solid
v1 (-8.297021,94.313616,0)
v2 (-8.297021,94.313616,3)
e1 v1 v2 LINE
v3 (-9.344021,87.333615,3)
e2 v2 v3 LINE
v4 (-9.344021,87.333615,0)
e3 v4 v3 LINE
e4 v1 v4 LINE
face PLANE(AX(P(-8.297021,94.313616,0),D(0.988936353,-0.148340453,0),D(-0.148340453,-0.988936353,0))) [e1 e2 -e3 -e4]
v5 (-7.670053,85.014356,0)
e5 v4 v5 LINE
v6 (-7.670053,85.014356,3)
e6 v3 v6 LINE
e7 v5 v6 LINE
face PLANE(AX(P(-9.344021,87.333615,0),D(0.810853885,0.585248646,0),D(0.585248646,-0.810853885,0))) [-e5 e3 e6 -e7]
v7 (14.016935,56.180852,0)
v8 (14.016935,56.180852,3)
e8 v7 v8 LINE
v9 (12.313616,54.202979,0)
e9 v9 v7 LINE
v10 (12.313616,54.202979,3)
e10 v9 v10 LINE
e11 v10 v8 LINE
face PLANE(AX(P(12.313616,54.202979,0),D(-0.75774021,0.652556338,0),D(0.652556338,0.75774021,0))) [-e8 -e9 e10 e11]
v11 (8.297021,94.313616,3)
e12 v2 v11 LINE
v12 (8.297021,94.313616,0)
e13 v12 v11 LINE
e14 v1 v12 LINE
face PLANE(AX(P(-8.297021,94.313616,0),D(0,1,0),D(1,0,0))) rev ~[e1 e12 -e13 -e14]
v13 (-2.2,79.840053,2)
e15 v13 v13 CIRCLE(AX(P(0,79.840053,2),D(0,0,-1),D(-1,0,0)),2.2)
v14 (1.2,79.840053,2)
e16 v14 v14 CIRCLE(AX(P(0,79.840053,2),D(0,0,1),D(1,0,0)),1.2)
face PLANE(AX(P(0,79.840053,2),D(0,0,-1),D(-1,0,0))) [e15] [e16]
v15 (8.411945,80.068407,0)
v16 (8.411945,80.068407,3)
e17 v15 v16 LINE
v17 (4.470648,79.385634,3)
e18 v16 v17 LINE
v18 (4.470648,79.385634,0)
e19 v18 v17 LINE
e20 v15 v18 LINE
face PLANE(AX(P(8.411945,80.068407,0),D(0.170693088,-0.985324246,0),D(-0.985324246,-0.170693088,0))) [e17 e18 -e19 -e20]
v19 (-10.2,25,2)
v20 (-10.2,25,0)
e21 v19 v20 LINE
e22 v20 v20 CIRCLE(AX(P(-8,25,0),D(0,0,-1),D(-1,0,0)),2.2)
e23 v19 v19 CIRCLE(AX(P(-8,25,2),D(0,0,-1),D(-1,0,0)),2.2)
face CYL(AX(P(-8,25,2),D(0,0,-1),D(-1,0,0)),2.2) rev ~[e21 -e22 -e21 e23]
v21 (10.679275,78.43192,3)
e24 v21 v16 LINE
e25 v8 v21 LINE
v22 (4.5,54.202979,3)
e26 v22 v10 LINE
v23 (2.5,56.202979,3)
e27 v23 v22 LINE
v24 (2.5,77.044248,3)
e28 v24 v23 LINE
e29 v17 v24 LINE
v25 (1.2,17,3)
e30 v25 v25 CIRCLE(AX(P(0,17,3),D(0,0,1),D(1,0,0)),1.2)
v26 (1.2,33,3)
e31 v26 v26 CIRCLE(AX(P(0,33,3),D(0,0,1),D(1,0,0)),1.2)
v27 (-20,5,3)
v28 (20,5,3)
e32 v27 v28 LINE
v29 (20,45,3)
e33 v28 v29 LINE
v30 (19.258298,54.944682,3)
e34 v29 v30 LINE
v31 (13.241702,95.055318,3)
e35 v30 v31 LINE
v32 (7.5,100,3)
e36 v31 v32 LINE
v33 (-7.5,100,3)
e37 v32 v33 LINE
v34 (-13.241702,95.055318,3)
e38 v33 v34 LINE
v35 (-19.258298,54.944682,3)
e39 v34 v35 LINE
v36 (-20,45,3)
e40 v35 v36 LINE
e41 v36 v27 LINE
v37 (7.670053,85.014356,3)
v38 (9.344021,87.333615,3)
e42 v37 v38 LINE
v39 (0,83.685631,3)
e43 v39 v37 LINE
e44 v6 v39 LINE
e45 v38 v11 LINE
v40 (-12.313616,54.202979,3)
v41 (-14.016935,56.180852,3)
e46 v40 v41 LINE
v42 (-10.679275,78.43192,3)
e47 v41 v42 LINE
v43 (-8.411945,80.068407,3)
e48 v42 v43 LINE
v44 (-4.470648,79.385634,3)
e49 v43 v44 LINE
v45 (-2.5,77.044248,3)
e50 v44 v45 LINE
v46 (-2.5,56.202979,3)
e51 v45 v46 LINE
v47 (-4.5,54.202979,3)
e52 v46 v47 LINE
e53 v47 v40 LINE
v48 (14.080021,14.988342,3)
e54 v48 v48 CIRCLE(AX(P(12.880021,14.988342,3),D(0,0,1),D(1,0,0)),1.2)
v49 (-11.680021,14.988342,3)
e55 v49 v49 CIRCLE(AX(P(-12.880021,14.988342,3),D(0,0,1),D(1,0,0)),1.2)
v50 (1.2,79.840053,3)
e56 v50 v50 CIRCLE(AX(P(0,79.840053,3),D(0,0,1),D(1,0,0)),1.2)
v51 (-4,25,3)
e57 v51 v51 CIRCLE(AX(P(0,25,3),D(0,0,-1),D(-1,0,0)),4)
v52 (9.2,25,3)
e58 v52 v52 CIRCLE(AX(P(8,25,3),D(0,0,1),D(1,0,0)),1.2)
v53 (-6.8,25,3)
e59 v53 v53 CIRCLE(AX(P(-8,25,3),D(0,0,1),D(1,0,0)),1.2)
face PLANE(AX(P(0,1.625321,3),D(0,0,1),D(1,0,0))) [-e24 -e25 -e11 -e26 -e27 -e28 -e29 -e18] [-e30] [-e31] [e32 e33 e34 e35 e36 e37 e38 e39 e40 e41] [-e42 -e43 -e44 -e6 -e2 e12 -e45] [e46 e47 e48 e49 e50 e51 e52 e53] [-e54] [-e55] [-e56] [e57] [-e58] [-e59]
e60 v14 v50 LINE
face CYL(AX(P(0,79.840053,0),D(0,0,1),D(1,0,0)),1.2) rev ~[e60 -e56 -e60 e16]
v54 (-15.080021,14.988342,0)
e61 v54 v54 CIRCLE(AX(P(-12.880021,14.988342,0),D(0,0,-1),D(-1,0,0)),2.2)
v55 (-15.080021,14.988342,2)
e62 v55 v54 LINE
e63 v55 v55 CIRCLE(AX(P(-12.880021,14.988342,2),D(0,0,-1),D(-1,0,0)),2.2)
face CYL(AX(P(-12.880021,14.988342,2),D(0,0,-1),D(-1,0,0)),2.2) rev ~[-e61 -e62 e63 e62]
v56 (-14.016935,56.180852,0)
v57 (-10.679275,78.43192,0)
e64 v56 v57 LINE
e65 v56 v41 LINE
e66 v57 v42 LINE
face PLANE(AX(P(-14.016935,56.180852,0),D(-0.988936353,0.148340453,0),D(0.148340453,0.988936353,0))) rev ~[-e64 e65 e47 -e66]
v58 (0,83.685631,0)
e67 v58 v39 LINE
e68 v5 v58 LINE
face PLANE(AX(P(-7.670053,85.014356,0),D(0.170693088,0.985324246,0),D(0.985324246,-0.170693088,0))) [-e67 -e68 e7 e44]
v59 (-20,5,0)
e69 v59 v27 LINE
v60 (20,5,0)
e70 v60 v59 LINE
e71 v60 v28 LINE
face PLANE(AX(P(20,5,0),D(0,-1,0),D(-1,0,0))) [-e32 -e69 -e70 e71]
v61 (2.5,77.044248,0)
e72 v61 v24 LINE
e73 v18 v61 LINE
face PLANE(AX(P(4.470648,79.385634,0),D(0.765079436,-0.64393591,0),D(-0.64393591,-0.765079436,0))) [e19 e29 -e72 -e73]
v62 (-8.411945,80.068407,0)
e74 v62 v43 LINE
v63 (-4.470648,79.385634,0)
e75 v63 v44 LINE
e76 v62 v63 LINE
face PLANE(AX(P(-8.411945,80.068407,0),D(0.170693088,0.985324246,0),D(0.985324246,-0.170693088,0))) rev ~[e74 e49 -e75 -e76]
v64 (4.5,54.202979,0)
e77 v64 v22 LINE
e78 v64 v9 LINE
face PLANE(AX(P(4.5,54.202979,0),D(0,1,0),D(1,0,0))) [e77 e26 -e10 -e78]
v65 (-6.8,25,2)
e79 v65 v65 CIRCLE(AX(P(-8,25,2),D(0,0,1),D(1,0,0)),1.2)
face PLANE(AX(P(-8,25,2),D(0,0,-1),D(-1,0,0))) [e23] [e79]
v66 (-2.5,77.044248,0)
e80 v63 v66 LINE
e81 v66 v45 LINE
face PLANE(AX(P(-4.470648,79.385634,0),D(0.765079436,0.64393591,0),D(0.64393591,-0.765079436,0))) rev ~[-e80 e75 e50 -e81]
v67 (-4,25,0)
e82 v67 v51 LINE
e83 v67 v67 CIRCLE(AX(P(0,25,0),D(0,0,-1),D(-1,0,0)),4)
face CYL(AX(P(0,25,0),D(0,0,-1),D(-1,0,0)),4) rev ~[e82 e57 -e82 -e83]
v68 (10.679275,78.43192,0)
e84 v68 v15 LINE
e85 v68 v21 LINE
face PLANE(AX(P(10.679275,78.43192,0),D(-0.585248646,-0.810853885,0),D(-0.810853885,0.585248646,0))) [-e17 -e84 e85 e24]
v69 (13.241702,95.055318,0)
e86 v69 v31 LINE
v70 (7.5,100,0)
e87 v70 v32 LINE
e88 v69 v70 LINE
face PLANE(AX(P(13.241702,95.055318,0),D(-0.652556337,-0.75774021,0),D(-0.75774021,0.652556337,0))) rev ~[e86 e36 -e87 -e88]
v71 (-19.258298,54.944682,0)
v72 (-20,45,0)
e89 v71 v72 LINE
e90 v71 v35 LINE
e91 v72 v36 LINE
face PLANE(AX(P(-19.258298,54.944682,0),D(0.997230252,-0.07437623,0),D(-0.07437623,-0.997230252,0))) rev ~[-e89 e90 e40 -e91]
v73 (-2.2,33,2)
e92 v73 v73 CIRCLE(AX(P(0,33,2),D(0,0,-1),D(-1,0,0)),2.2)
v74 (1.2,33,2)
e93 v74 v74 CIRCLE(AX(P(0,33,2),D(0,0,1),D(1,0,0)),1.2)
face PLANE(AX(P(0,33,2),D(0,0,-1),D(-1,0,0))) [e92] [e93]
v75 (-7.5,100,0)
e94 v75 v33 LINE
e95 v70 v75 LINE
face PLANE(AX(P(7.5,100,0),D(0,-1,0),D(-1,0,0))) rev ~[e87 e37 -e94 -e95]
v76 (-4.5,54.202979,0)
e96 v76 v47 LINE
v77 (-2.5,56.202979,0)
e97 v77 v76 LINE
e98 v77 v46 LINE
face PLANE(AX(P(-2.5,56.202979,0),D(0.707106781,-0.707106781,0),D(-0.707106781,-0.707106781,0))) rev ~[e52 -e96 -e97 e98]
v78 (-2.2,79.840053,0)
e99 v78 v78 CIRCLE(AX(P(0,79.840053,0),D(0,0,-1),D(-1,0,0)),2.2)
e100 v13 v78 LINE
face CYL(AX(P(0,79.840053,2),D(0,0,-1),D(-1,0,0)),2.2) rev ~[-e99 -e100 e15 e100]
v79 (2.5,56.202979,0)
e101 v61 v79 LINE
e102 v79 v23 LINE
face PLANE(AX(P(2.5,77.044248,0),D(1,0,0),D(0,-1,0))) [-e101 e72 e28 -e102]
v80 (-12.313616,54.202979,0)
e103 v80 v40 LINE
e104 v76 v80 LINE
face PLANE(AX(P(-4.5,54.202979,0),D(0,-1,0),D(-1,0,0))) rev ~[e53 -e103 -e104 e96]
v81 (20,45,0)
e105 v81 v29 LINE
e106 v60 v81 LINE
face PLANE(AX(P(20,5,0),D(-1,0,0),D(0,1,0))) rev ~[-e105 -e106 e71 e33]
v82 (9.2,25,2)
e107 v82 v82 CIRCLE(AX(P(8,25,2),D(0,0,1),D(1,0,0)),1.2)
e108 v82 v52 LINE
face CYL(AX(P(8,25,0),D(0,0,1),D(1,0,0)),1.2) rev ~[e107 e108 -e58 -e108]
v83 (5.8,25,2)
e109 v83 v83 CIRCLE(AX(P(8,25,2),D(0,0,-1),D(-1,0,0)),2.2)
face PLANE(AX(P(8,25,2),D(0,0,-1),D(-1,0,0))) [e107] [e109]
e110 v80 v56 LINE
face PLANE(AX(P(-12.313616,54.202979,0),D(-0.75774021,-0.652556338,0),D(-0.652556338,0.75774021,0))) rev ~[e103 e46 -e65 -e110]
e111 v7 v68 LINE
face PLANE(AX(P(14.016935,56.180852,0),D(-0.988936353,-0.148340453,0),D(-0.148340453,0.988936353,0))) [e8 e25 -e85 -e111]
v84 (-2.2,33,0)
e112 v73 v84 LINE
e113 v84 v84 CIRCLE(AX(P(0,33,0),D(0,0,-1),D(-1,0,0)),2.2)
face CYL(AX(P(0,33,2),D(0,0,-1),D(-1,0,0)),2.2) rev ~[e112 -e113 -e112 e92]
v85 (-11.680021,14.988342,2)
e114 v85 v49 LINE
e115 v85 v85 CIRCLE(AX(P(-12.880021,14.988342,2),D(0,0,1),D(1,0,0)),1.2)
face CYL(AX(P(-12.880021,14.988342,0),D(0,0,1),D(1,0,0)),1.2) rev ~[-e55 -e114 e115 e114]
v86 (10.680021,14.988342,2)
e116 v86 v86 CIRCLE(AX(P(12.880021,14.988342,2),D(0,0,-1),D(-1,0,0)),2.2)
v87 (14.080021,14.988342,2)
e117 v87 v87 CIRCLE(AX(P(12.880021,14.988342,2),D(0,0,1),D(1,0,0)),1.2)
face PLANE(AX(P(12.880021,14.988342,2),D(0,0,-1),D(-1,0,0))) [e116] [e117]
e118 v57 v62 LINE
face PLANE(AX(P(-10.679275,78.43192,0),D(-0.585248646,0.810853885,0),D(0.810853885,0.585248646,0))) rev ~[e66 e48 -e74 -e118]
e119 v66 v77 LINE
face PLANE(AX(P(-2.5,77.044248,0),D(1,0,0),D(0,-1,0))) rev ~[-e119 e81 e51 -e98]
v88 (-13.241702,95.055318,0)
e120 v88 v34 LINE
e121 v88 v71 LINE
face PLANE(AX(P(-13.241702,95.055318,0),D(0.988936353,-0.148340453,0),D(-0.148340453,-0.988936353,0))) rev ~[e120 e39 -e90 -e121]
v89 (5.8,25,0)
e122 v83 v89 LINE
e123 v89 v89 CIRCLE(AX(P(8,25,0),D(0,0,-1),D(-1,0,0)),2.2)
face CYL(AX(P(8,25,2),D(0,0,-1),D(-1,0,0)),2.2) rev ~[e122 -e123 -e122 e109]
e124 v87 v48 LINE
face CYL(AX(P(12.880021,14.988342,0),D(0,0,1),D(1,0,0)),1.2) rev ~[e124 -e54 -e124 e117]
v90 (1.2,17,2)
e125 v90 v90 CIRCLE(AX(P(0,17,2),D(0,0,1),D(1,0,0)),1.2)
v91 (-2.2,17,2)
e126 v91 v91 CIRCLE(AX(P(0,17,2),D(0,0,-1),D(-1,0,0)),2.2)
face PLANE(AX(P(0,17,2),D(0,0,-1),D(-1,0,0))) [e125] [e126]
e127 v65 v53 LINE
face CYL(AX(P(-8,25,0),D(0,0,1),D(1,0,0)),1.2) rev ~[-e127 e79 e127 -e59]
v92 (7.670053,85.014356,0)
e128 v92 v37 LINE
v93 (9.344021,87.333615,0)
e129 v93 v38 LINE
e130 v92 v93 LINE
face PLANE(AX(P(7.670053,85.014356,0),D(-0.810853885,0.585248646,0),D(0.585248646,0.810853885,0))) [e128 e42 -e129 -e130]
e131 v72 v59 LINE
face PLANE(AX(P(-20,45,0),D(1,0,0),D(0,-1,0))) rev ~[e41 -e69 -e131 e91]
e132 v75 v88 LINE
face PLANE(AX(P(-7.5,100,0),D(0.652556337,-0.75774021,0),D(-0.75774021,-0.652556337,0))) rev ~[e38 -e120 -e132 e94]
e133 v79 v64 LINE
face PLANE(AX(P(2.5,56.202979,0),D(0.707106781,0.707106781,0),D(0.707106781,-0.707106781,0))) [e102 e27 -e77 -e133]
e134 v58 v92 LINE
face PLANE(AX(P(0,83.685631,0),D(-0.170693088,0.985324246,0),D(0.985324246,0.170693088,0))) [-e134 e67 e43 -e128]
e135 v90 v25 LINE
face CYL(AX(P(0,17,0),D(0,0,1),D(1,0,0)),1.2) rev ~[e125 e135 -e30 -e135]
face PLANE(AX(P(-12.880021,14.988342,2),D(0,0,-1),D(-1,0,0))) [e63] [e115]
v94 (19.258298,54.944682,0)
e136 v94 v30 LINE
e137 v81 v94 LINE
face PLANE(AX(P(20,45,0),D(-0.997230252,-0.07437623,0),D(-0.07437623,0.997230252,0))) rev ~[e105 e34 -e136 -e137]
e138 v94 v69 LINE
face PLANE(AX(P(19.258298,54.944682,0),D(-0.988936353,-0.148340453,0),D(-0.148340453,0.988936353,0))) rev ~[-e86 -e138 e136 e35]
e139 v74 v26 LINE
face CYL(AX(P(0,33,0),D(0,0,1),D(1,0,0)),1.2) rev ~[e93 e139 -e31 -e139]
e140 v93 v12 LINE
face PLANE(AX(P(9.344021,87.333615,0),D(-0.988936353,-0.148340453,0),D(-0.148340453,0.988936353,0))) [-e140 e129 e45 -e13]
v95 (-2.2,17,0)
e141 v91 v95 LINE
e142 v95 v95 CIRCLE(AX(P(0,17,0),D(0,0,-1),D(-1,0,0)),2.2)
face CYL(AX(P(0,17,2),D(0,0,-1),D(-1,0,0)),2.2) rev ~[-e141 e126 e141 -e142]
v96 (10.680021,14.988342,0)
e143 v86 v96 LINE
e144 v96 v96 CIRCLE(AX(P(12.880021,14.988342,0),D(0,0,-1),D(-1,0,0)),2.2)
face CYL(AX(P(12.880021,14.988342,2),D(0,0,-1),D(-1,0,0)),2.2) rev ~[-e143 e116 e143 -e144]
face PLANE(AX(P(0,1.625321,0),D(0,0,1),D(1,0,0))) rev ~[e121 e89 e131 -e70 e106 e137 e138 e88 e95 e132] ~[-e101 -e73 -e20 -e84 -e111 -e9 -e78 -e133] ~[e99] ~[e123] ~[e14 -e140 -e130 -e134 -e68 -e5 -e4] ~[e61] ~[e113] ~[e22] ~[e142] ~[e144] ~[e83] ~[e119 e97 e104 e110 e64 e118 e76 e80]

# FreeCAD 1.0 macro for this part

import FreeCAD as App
import Part
import Sketcher

V = App.Vector
Q = App.Units.Quantity

doc = App.newDocument("Part")
body = doc.addObject("PartDesign::Body", "Body")

# Sketch on XY plane
sketch1 = body.newObject("Sketcher::SketchObject", "Sketch")
sketch1.AttachmentSupport = (doc.getObject("XY_Plane"), [""])
sketch1.MapMode = "FlatFace"
sketch1.addGeometry([
    Part.LineSegment(V(20, 5, 0), V(20, 45, 0)),  # 0
    Part.LineSegment(V(20, 45, 0), V(19.3, 54.9, 0)),  # 1
    Part.LineSegment(V(19.3, 54.9, 0), V(13.2, 95.1, 0)),  # 2
    Part.LineSegment(V(13.2, 95.1, 0), V(7.5, 100, 0)),  # 3
    Part.LineSegment(V(7.5, 100, 0), V(-7.5, 100, 0)),  # 4
    Part.LineSegment(V(-7.5, 100, 0), V(-13.2, 95.1, 0)),  # 5
    Part.LineSegment(V(-13.2, 95.1, 0), V(-19.3, 54.9, 0)),  # 6
    Part.LineSegment(V(-19.3, 54.9, 0), V(-20, 45, 0)),  # 7
    Part.LineSegment(V(-20, 45, 0), V(-20, 5, 0)),  # 8
    Part.LineSegment(V(-20, 5, 0), V(-19.4, -5, 0)),  # 9
    Part.LineSegment(V(-19.4, -5, 0), V(-7.7, -98, 0)),  # 10
    Part.LineSegment(V(-7.7, -98, 0), V(-5.5, -100, 0)),  # 11
    Part.LineSegment(V(-5.5, -100, 0), V(5.5, -100, 0)),  # 12
    Part.LineSegment(V(5.5, -100, 0), V(7.7, -98, 0)),  # 13
    Part.LineSegment(V(7.7, -98, 0), V(19.4, -5, 0)),  # 14
    Part.LineSegment(V(19.4, -5, 0), V(20, 5, 0)),  # 15
], False)
sketch1.addConstraint([
    Sketcher.Constraint("Coincident", 0, 2, 1, 1),
    Sketcher.Constraint("Coincident", 1, 2, 2, 1),
    Sketcher.Constraint("Coincident", 2, 2, 3, 1),
    Sketcher.Constraint("Coincident", 3, 2, 4, 1),
    Sketcher.Constraint("Coincident", 4, 2, 5, 1),
    Sketcher.Constraint("Coincident", 5, 2, 6, 1),
    Sketcher.Constraint("Coincident", 6, 2, 7, 1),
    Sketcher.Constraint("Coincident", 7, 2, 8, 1),
    Sketcher.Constraint("Coincident", 8, 2, 9, 1),
    Sketcher.Constraint("Coincident", 9, 2, 10, 1),
    Sketcher.Constraint("Coincident", 10, 2, 11, 1),
    Sketcher.Constraint("Coincident", 11, 2, 12, 1),
    Sketcher.Constraint("Coincident", 12, 2, 13, 1),
    Sketcher.Constraint("Coincident", 13, 2, 14, 1),
    Sketcher.Constraint("Coincident", 14, 2, 15, 1),
    Sketcher.Constraint("Coincident", 15, 2, 0, 1),
    Sketcher.Constraint("Vertical", 0),
    Sketcher.Constraint("Horizontal", 4),
    Sketcher.Constraint("Vertical", 8),
    Sketcher.Constraint("Horizontal", 12),
    Sketcher.Constraint("Symmetric", 2, 2, 5, 2, -2),
    Sketcher.Constraint("Symmetric", 1, 2, 6, 2, -2),
    Sketcher.Constraint("Symmetric", 0, 2, 7, 2, -2),
    Sketcher.Constraint("Symmetric", 10, 2, 13, 2, -2),
    Sketcher.Constraint("Symmetric", 9, 2, 14, 2, -2),
    Sketcher.Constraint("Horizontal", 8, 2, 15, 2),
    Sketcher.Constraint("Equal", 3, 5),
    Sketcher.Constraint("Equal", 11, 13),
    Sketcher.Constraint("DistanceX", 4, 2, 4, 1, Q("15 mm")),
    Sketcher.Constraint("DistanceX", 12, 1, 12, 2, Q("11 mm")),
    Sketcher.Constraint("DistanceY", 0, 1, 0, 2, Q("40 mm")),
    Sketcher.Constraint("DistanceX", -1, 1, 0, 2, Q("20 mm")),
    Sketcher.Constraint("DistanceY", -1, 1, 0, 2, Q("45 mm")),
    Sketcher.Constraint("DistanceY", -1, 1, 3, 2, Q("100 mm")),
    Sketcher.Constraint("DistanceY", 11, 2, -1, 1, Q("100 mm")),
    Sketcher.Constraint("DistanceX", 5, 2, 1, 2, Q("32.5 mm")),
    Sketcher.Constraint("Distance", 2, Q("40.559371 mm")),
    Sketcher.Constraint("Distance", 10, Q("93.778222 mm")),
    Sketcher.Constraint("DistanceY", -1, 1, 1, 2, Q("54.944682 mm")),
    Sketcher.Constraint("DistanceY", -1, 1, 2, 2, Q("95.055318 mm")),
    Sketcher.Constraint("DistanceY", 9, 2, -1, 1, Q("4.961389 mm")),
    Sketcher.Constraint("DistanceX", 10, 2, -1, 1, Q("7.748069 mm")),
    Sketcher.Constraint("DistanceX", 9, 2, 6, 2, Q("0.121529 mm")),
])
pad1 = body.newObject("PartDesign::Pad", "Pad")
pad1.Profile = sketch1
pad1.Length = 3

# Sketch on XY plane
sketch2 = body.newObject("Sketcher::SketchObject", "Sketch001")
sketch2.AttachmentSupport = (doc.getObject("XY_Plane"), [""])
sketch2.MapMode = "FlatFace"
sketch2.AttachmentOffset = App.Placement(V(0, 0, 3), App.Rotation())
sketch2.addGeometry([
    Part.LineSegment(V(10, -5, 0), V(-10, -5, 0)),
    Part.LineSegment(V(-10, -5, 0), V(0, -22, 0)),
    Part.LineSegment(V(0, -22, 0), V(10, -5, 0)),
], False)
sketch2.addConstraint([
    Sketcher.Constraint("Coincident", 0, 2, 1, 1),
    Sketcher.Constraint("Coincident", 1, 2, 2, 1),
    Sketcher.Constraint("Coincident", 2, 2, 0, 1),
    Sketcher.Constraint("Horizontal", 0),
    Sketcher.Constraint("PointOnObject", 1, 2, -2),
    Sketcher.Constraint("Equal", 1, 2),
    Sketcher.Constraint("DistanceX", 0, 2, 0, 1, Q("20 mm")),
    Sketcher.Constraint("Angle", 1, Q("-60 deg")),
    Sketcher.Constraint("DistanceY", 0, 2, -1, 1, Q("5 mm")),
])
pocket1 = body.newObject("PartDesign::Pocket", "Pocket")
pocket1.Profile = sketch2
pocket1.Type = "UpToFirst"

# Sketch on XY plane
sketch3 = body.newObject("Sketcher::SketchObject", "Sketch002")
sketch3.AttachmentSupport = (doc.getObject("XY_Plane"), [""])
sketch3.MapMode = "FlatFace"
sketch3.AttachmentOffset = App.Placement(V(0, 0, 3), App.Rotation())
sketch3.addGeometry([
    Part.LineSegment(V(6.2, -70, 0), V(13.9, -8.2, 0)),
    Part.LineSegment(V(13.9, -8.2, 0), V(2.5, -28, 0)),
    Part.LineSegment(V(2.5, -28, 0), V(2.5, -70, 0)),
    Part.LineSegment(V(2.5, -70, 0), V(6.2, -70, 0)),
], False)
sketch3.addConstraint([
    Sketcher.Constraint("Coincident", 0, 2, 1, 1),
    Sketcher.Constraint("Coincident", 1, 2, 2, 1),
    Sketcher.Constraint("Coincident", 2, 2, 3, 1),
    Sketcher.Constraint("Coincident", 3, 2, 0, 1),
    Sketcher.Constraint("Vertical", 2),
    Sketcher.Constraint("Horizontal", 3),
    Sketcher.Constraint("Angle", 1, Q("-120 deg")),
    Sketcher.Constraint("DistanceY", 2, 2, -1, 1, Q("70 mm")),
    Sketcher.Constraint("DistanceX", -1, 1, 1, 2, Q("2.5 mm")),
    Sketcher.Constraint("DistanceX", 3, 1, 3, 2, Q("3.711089 mm")),
    Sketcher.Constraint("DistanceY", 2, 2, 2, 1, Q("42.009619 mm")),
    Sketcher.Constraint("Distance", 0, Q("62.303458 mm")),
])
pocket2 = body.newObject("PartDesign::Pocket", "Pocket001")
pocket2.Profile = sketch3
pocket2.Type = "UpToFirst"

# Sketch on XY plane
sketch4 = body.newObject("Sketcher::SketchObject", "Sketch003")
sketch4.AttachmentSupport = (doc.getObject("XY_Plane"), [""])
sketch4.MapMode = "FlatFace"
sketch4.AttachmentOffset = App.Placement(V(0, 0, 3), App.Rotation())
sketch4.addGeometry([
    Part.LineSegment(V(-2.5, -28, 0), V(-13.9, -8.2, 0)),
    Part.LineSegment(V(-13.9, -8.2, 0), V(-6.2, -70, 0)),
    Part.LineSegment(V(-6.2, -70, 0), V(-2.5, -70, 0)),
    Part.LineSegment(V(-2.5, -70, 0), V(-2.5, -28, 0)),
], False)
sketch4.addConstraint([
    Sketcher.Constraint("Coincident", 0, 2, 1, 1),
    Sketcher.Constraint("Coincident", 1, 2, 2, 1),
    Sketcher.Constraint("Coincident", 2, 2, 3, 1),
    Sketcher.Constraint("Coincident", 3, 2, 0, 1),
    Sketcher.Constraint("Horizontal", 2),
    Sketcher.Constraint("Vertical", 3),
    Sketcher.Constraint("Angle", 0, Q("120 deg")),
    Sketcher.Constraint("DistanceY", 1, 2, -1, 1, Q("70 mm")),
    Sketcher.Constraint("DistanceX", 2, 2, -1, 1, Q("2.5 mm")),
    Sketcher.Constraint("DistanceX", 2, 1, 2, 2, Q("3.711089 mm")),
    Sketcher.Constraint("DistanceY", 3, 1, 3, 2, Q("42.009619 mm")),
    Sketcher.Constraint("Distance", 1, Q("62.303458 mm")),
])
pocket3 = body.newObject("PartDesign::Pocket", "Pocket002")
pocket3.Profile = sketch4
pocket3.Type = "UpToFirst"

# Sketch on XY plane
sketch5 = body.newObject("Sketcher::SketchObject", "Sketch004")
sketch5.AttachmentSupport = (doc.getObject("XY_Plane"), [""])
sketch5.MapMode = "FlatFace"
sketch5.AttachmentOffset = App.Placement(V(0, 0, 3), App.Rotation())
sketch5.addGeometry([
    Part.LineSegment(V(-2, -80, 0), V(-2, -90, 0)),
    Part.LineSegment(V(-2, -90, 0), V(2, -90, 0)),
    Part.LineSegment(V(2, -90, 0), V(2, -80, 0)),
    Part.LineSegment(V(2, -80, 0), V(-2, -80, 0)),
], False)
sketch5.addConstraint([
    Sketcher.Constraint("Coincident", 0, 2, 1, 1),
    Sketcher.Constraint("Coincident", 1, 2, 2, 1),
    Sketcher.Constraint("Coincident", 2, 2, 3, 1),
    Sketcher.Constraint("Coincident", 3, 2, 0, 1),
    Sketcher.Constraint("Vertical", 0),
    Sketcher.Constraint("Horizontal", 1),
    Sketcher.Constraint("Vertical", 2),
    Sketcher.Constraint("Horizontal", 3),
    Sketcher.Constraint("DistanceX", 1, 1, 1, 2, Q("5 mm")),
    Sketcher.Constraint("DistanceY", 0, 2, 0, 1, Q("10 mm")),
    Sketcher.Constraint("DistanceY", 0, 2, -1, 1, Q("90 mm")),
    Sketcher.Constraint("DistanceX", 0, 2, -1, 1, Q("2.5 mm")),
])
pocket4 = body.newObject("PartDesign::Pocket", "Pocket003")
pocket4.Profile = sketch5
pocket4.Type = "UpToFirst"

# Sketch on XY plane
sketch6 = body.newObject("Sketcher::SketchObject", "Sketch005")
sketch6.AttachmentSupport = (doc.getObject("XY_Plane"), [""])
sketch6.MapMode = "FlatFace"
sketch6.addGeometry([
    Part.Circle(V(5.6, -75, 0), V(0, 0, 1), 1.2),
    Part.Circle(V(-5.6, -75, 0), V(0, 0, 1), 1.2),
], False)
sketch6.addConstraint([
    Sketcher.Constraint("Equal", 0, 1),
    Sketcher.Constraint("Symmetric", 0, 3, 1, 3, -2),
    Sketcher.Constraint("Diameter", 0, Q("2.4 mm")),
    Sketcher.Constraint("DistanceY", 0, 3, -1, 1, Q("75 mm")),
    Sketcher.Constraint("DistanceX", -1, 1, 0, 3, Q("5.586089 mm")),
])
doc.recompute()
hole = body.newObject("PartDesign::Hole", "Hole")
hole.Profile = sketch6
hole.ThreadType = "None"
hole.Diameter = 2.4
hole.DepthType = "ThroughAll"
hole.HoleCutType = "Counterbore"
hole.HoleCutDiameter = 4.4
hole.HoleCutDepth = 2
hole.Reversed = True

# Sketch on XY plane
sketch7 = body.newObject("Sketcher::SketchObject", "Sketch006")
sketch7.AttachmentSupport = (doc.getObject("XY_Plane"), [""])
sketch7.MapMode = "FlatFace"
sketch7.addGeometry(Part.Circle(V(0, 25, 0), V(0, 0, 1), 4), False)
sketch7.addConstraint([
    Sketcher.Constraint("PointOnObject", 0, 3, -2),
    Sketcher.Constraint("Diameter", 0, Q("8 mm")),
    Sketcher.Constraint("DistanceY", -1, 1, 0, 3, Q("25 mm")),
])
pocket5 = body.newObject("PartDesign::Pocket", "Pocket004")
pocket5.Profile = sketch7
pocket5.Type = "UpToFirst"
pocket5.Reversed = True

# Sketch on XY plane
sketch8 = body.newObject("Sketcher::SketchObject", "Sketch007")
sketch8.AttachmentSupport = (doc.getObject("XY_Plane"), [""])
sketch8.MapMode = "FlatFace"
sketch8.addGeometry([
    Part.Circle(V(8, 25, 0), V(0, 0, 1), 1.2),
    Part.Circle(V(0, 33, 0), V(0, 0, 1), 1.2),
    Part.Circle(V(-8, 25, 0), V(0, 0, 1), 1.2),
    Part.Circle(V(0, 17, 0), V(0, 0, 1), 1.2),
], False)
sketch8.addConstraint([
    Sketcher.Constraint("Equal", 0, 1),
    Sketcher.Constraint("Equal", 1, 2),
    Sketcher.Constraint("Equal", 2, 3),
    Sketcher.Constraint("Symmetric", 0, 3, 2, 3, -2),
    Sketcher.Constraint("PointOnObject", 1, 3, -2),
    Sketcher.Constraint("PointOnObject", 3, 3, -2),
    Sketcher.Constraint("Diameter", 0, Q("2.4 mm")),
    Sketcher.Constraint("DistanceX", -1, 1, 0, 3, Q("8 mm")),
    Sketcher.Constraint("DistanceY", -1, 1, 0, 3, Q("25 mm")),
    Sketcher.Constraint("DistanceY", -1, 1, 1, 3, Q("33 mm")),
    Sketcher.Constraint("DistanceY", -1, 1, 3, 3, Q("17 mm")),
])
doc.recompute()
hole2 = body.newObject("PartDesign::Hole", "Hole001")
hole2.Profile = sketch8
hole2.ThreadType = "None"
hole2.Diameter = 2.4
hole2.DepthType = "ThroughAll"
hole2.HoleCutType = "Counterbore"
hole2.HoleCutDiameter = 4.4
hole2.HoleCutDepth = 2
hole2.Reversed = True

# Sketch on XY plane
sketch9 = body.newObject("Sketcher::SketchObject", "Sketch008")
sketch9.AttachmentSupport = (doc.getObject("XY_Plane"), [""])
sketch9.MapMode = "FlatFace"
sketch9.addGeometry([
    Part.Circle(V(12.9, -5, 0), V(0, 0, 1), 1.2),
    Part.Circle(V(-12.9, -5, 0), V(0, 0, 1), 1.2),
], False)
sketch9.addConstraint([
    Sketcher.Constraint("Equal", 0, 1),
    Sketcher.Constraint("Symmetric", 0, 3, 1, 3, -2),
    Sketcher.Constraint("Diameter", 0, Q("2.4 mm")),
    Sketcher.Constraint("DistanceX", -1, 1, 0, 3, Q("12.880021 mm")),
    Sketcher.Constraint("DistanceY", 0, 3, -1, 1, Q("5.011658 mm")),
])
doc.recompute()
hole3 = body.newObject("PartDesign::Hole", "Hole002")
hole3.Profile = sketch9
hole3.ThreadType = "None"
hole3.Diameter = 2.4
hole3.DepthType = "ThroughAll"
hole3.HoleCutType = "Counterbore"
hole3.HoleCutDiameter = 4.4
hole3.HoleCutDepth = 2
hole3.Reversed = True

# Sketch on XY plane
sketch10 = body.newObject("Sketcher::SketchObject", "Sketch009")
sketch10.AttachmentSupport = (doc.getObject("XY_Plane"), [""])
sketch10.MapMode = "FlatFace"
sketch10.addGeometry([
    Part.LineSegment(V(10.7, 78.4, 0), V(14, 56.2, 0)),  # 0
    Part.LineSegment(V(14, 56.2, 0), V(12.3, 54.2, 0)),  # 1
    Part.LineSegment(V(12.3, 54.2, 0), V(4.5, 54.2, 0)),  # 2
    Part.LineSegment(V(4.5, 54.2, 0), V(2.5, 56.2, 0)),  # 3
    Part.LineSegment(V(2.5, 56.2, 0), V(2.5, 77, 0)),  # 4
    Part.LineSegment(V(2.5, 77, 0), V(4.5, 79.4, 0)),  # 5
    Part.LineSegment(V(4.5, 79.4, 0), V(8.4, 80.1, 0)),  # 6
    Part.LineSegment(V(8.4, 80.1, 0), V(10.7, 78.4, 0)),  # 7
    Part.LineSegment(V(8.3, 94.3, 0), V(9.3, 87.3, 0)),  # 8
    Part.LineSegment(V(9.3, 87.3, 0), V(7.7, 85, 0)),  # 9
    Part.LineSegment(V(7.7, 85, 0), V(0, 83.7, 0)),  # 10
    Part.LineSegment(V(0, 83.7, 0), V(-7.7, 85, 0)),  # 11
    Part.LineSegment(V(-7.7, 85, 0), V(-9.3, 87.3, 0)),  # 12
    Part.LineSegment(V(-9.3, 87.3, 0), V(-8.3, 94.3, 0)),  # 13
    Part.LineSegment(V(-8.3, 94.3, 0), V(8.3, 94.3, 0)),  # 14
    Part.LineSegment(V(-4.5, 54.2, 0), V(-12.3, 54.2, 0)),  # 15
    Part.LineSegment(V(-12.3, 54.2, 0), V(-14, 56.2, 0)),  # 16
    Part.LineSegment(V(-14, 56.2, 0), V(-10.7, 78.4, 0)),  # 17
    Part.LineSegment(V(-10.7, 78.4, 0), V(-8.4, 80.1, 0)),  # 18
    Part.LineSegment(V(-8.4, 80.1, 0), V(-4.5, 79.4, 0)),  # 19
    Part.LineSegment(V(-4.5, 79.4, 0), V(-2.5, 77, 0)),  # 20
    Part.LineSegment(V(-2.5, 77, 0), V(-2.5, 56.2, 0)),  # 21
    Part.LineSegment(V(-2.5, 56.2, 0), V(-4.5, 54.2, 0)),  # 22
], False)
sketch10.addConstraint([
    Sketcher.Constraint("Coincident", 0, 2, 1, 1),
    Sketcher.Constraint("Coincident", 1, 2, 2, 1),
    Sketcher.Constraint("Coincident", 2, 2, 3, 1),
    Sketcher.Constraint("Coincident", 3, 2, 4, 1),
    Sketcher.Constraint("Coincident", 4, 2, 5, 1),
    Sketcher.Constraint("Coincident", 5, 2, 6, 1),
    Sketcher.Constraint("Coincident", 6, 2, 7, 1),
    Sketcher.Constraint("Coincident", 7, 2, 0, 1),
    Sketcher.Constraint("Coincident", 8, 2, 9, 1),
    Sketcher.Constraint("Coincident", 9, 2, 10, 1),
    Sketcher.Constraint("Coincident", 10, 2, 11, 1),
    Sketcher.Constraint("Coincident", 11, 2, 12, 1),
    Sketcher.Constraint("Coincident", 12, 2, 13, 1),
    Sketcher.Constraint("Coincident", 13, 2, 14, 1),
    Sketcher.Constraint("Coincident", 14, 2, 8, 1),
    Sketcher.Constraint("Coincident", 15, 2, 16, 1),
    Sketcher.Constraint("Coincident", 16, 2, 17, 1),
    Sketcher.Constraint("Coincident", 17, 2, 18, 1),
    Sketcher.Constraint("Coincident", 18, 2, 19, 1),
    Sketcher.Constraint("Coincident", 19, 2, 20, 1),
    Sketcher.Constraint("Coincident", 20, 2, 21, 1),
    Sketcher.Constraint("Coincident", 21, 2, 22, 1),
    Sketcher.Constraint("Coincident", 22, 2, 15, 1),
    Sketcher.Constraint("Horizontal", 2),
    Sketcher.Constraint("Vertical", 4),
    Sketcher.Constraint("Horizontal", 14),
    Sketcher.Constraint("Horizontal", 15),
    Sketcher.Constraint("Vertical", 21),
    Sketcher.Constraint("Symmetric", 9, 2, 11, 2, -2),
    Sketcher.Constraint("Symmetric", 8, 2, 12, 2, -2),
    Sketcher.Constraint("Symmetric", 1, 2, 15, 2, -2),
    Sketcher.Constraint("Symmetric", 0, 2, 16, 2, -2),
    Sketcher.Constraint("Symmetric", 7, 2, 17, 2, -2),
    Sketcher.Constraint("Symmetric", 6, 2, 18, 2, -2),
    Sketcher.Constraint("Symmetric", 5, 2, 19, 2, -2),
    Sketcher.Constraint("Symmetric", 4, 2, 20, 2, -2),
    Sketcher.Constraint("PointOnObject", 10, 2, -2),
    Sketcher.Constraint("Parallel", 0, 8),
    Sketcher.Constraint("Perpendicular", 7, 9),
    Sketcher.Constraint("Parallel", 6, 10),
    Sketcher.Constraint("Parallel", 13, 17),
    Sketcher.Constraint("Perpendicular", 3, 22),
    Sketcher.Constraint("Horizontal", 3, 2, 21, 2),
    Sketcher.Constraint("Equal", 2, 15),
    Sketcher.Constraint("Distance", 6, Q("4 mm")),
    Sketcher.Constraint("DistanceX", 3, 2, 2, 2, Q("2 mm")),
    Sketcher.Constraint("DistanceX", 20, 2, 4, 2, Q("5 mm")),
    Sketcher.Constraint("Distance", 0, Q("22.5 mm")),
    Sketcher.Constraint("DistanceY", 12, 2, 13, 2, Q("6.980001 mm")),
    Sketcher.Constraint("DistanceX", 11, 2, 6, 2, Q("16.081999 mm")),
    Sketcher.Constraint("DistanceX", 12, 2, 13, 2, Q("1.047 mm")),
    Sketcher.Constraint("DistanceX", 14, 1, 14, 2, Q("16.594041 mm")),
    Sketcher.Constraint("DistanceY", 4, 1, 4, 2, Q("20.841269 mm")),
    Sketcher.Constraint("DistanceX", 11, 2, 5, 2, Q("12.140702 mm")),
    Sketcher.Constraint("DistanceX", 2, 2, 2, 1, Q("7.813616 mm")),
    Sketcher.Constraint("DistanceY", -1, 1, 1, 2, Q("54.202979 mm")),
    Sketcher.Constraint("DistanceX", -1, 1, 5, 2, Q("4.470648 mm")),
    Sketcher.Constraint("DistanceY", -1, 1, 7, 2, Q("78.43192 mm")),
    Sketcher.Constraint("DistanceY", -1, 1, 10, 2, Q("83.685631 mm")),
    Sketcher.Constraint("DistanceX", 1, 2, 0, 2, Q("1.703319 mm")),
    Sketcher.Constraint("DistanceY", 4, 2, 6, 2, Q("3.024159 mm")),
])
pocket6 = body.newObject("PartDesign::Pocket", "Pocket005")
pocket6.Profile = sketch10
pocket6.Length = 3
pocket6.Reversed = True

# Sketch on XY plane
sketch11 = body.newObject("Sketcher::SketchObject", "Sketch010")
sketch11.AttachmentSupport = (doc.getObject("XY_Plane"), [""])
sketch11.MapMode = "FlatFace"
sketch11.addGeometry(Part.Circle(V(0, 79.8, 0), V(0, 0, 1), 1.2), False)
sketch11.addConstraint([
    Sketcher.Constraint("PointOnObject", 0, 3, -2),
    Sketcher.Constraint("Diameter", 0, Q("2.4 mm")),
    Sketcher.Constraint("DistanceY", -1, 1, 0, 3, Q("79.840053 mm")),
])
doc.recompute()
hole4 = body.newObject("PartDesign::Hole", "Hole003")
hole4.Profile = sketch11
hole4.ThreadType = "None"
hole4.Diameter = 2.4
hole4.DepthType = "ThroughAll"
hole4.HoleCutType = "Counterbore"
hole4.HoleCutDiameter = 4.4
hole4.HoleCutDepth = 2
hole4.Reversed = True

# Sketch on XY plane
sketch12 = body.newObject("Sketcher::SketchObject", "Sketch011")
sketch12.AttachmentSupport = (doc.getObject("XY_Plane"), [""])
sketch12.MapMode = "FlatFace"
sketch12.addGeometry([
    Part.Circle(V(12.9, 15, 0), V(0, 0, 1), 1.2),
    Part.Circle(V(-12.9, 15, 0), V(0, 0, 1), 1.2),
], False)
sketch12.addConstraint([
    Sketcher.Constraint("Equal", 0, 1),
    Sketcher.Constraint("Symmetric", 0, 3, 1, 3, -2),
    Sketcher.Constraint("Diameter", 0, Q("2.4 mm")),
    Sketcher.Constraint("DistanceX", -1, 1, 0, 3, Q("12.880021 mm")),
    Sketcher.Constraint("DistanceY", -1, 1, 0, 3, Q("14.988342 mm")),
])
doc.recompute()
hole5 = body.newObject("PartDesign::Hole", "Hole004")
hole5.Profile = sketch12
hole5.ThreadType = "None"
hole5.Diameter = 2.4
hole5.DepthType = "ThroughAll"
hole5.HoleCutType = "Counterbore"
hole5.HoleCutDiameter = 4.4
hole5.HoleCutDepth = 2
hole5.Reversed = True

# Sketch on XY plane
sketch13 = body.newObject("Sketcher::SketchObject", "Sketch012")
sketch13.AttachmentSupport = (doc.getObject("XY_Plane"), [""])
sketch13.MapMode = "FlatFace"
sketch13.addGeometry([
    Part.LineSegment(V(41, 121, 0), V(41, -121, 0)),  # 0
    Part.LineSegment(V(41, -121, 0), V(-41, -121, 0)),  # 1
    Part.LineSegment(V(-41, -121, 0), V(-41, 121, 0)),  # 2
    Part.LineSegment(V(-41, 121, 0), V(41, 121, 0)),  # 3
    Part.LineSegment(V(-20, 5, 0), V(20, 5, 0)),  # 4
    Part.LineSegment(V(20, 5, 0), V(20, 100, 0)),  # 5
    Part.LineSegment(V(20, 100, 0), V(8, 100, 0)),  # 6
    Part.LineSegment(V(8, 100, 0), V(-8, 100, 0)),  # 7
    Part.LineSegment(V(-8, 100, 0), V(-20, 100, 0)),  # 8
    Part.LineSegment(V(-20, 100, 0), V(-20, 5, 0)),  # 9
], False)
sketch13.addConstraint([
    Sketcher.Constraint("Coincident", 0, 2, 1, 1),
    Sketcher.Constraint("Coincident", 1, 2, 2, 1),
    Sketcher.Constraint("Coincident", 2, 2, 3, 1),
    Sketcher.Constraint("Coincident", 3, 2, 0, 1),
    Sketcher.Constraint("Coincident", 4, 2, 5, 1),
    Sketcher.Constraint("Coincident", 5, 2, 6, 1),
    Sketcher.Constraint("Coincident", 6, 2, 7, 1),
    Sketcher.Constraint("Coincident", 7, 2, 8, 1),
    Sketcher.Constraint("Coincident", 8, 2, 9, 1),
    Sketcher.Constraint("Coincident", 9, 2, 4, 1),
    Sketcher.Constraint("Vertical", 0),
    Sketcher.Constraint("Horizontal", 1),
    Sketcher.Constraint("Vertical", 2),
    Sketcher.Constraint("Horizontal", 3),
    Sketcher.Constraint("Horizontal", 4),
    Sketcher.Constraint("Vertical", 5),
    Sketcher.Constraint("Horizontal", 7),
    Sketcher.Constraint("Vertical", 9),
    Sketcher.Constraint("Symmetric", 0, 2, 2, 2, -1, 1),
    Sketcher.Constraint("Symmetric", 5, 2, 8, 2, -2),
    Sketcher.Constraint("Equal", 6, 8),
    Sketcher.Constraint("DistanceX", 4, 1, 4, 2, Q("40 mm")),
    Sketcher.Constraint("DistanceX", 7, 2, 7, 1, Q("15 mm")),
    Sketcher.Constraint("DistanceY", -1, 1, 4, 2, Q("5 mm")),
    Sketcher.Constraint("DistanceY", -1, 1, 6, 2, Q("100 mm")),
    Sketcher.Constraint("DistanceX", 1, 2, 1, 1, Q("82.796 mm")),
    Sketcher.Constraint("DistanceY", 0, 2, 0, 1, Q("242.796 mm")),
    Sketcher.Constraint("DistanceY", 5, 1, 5, 2, Q("94.998274 mm")),
])
pocket7 = body.newObject("PartDesign::Pocket", "Pocket006")
pocket7.Profile = sketch13
pocket7.Length = 10
pocket7.Reversed = True

doc.recompute()
